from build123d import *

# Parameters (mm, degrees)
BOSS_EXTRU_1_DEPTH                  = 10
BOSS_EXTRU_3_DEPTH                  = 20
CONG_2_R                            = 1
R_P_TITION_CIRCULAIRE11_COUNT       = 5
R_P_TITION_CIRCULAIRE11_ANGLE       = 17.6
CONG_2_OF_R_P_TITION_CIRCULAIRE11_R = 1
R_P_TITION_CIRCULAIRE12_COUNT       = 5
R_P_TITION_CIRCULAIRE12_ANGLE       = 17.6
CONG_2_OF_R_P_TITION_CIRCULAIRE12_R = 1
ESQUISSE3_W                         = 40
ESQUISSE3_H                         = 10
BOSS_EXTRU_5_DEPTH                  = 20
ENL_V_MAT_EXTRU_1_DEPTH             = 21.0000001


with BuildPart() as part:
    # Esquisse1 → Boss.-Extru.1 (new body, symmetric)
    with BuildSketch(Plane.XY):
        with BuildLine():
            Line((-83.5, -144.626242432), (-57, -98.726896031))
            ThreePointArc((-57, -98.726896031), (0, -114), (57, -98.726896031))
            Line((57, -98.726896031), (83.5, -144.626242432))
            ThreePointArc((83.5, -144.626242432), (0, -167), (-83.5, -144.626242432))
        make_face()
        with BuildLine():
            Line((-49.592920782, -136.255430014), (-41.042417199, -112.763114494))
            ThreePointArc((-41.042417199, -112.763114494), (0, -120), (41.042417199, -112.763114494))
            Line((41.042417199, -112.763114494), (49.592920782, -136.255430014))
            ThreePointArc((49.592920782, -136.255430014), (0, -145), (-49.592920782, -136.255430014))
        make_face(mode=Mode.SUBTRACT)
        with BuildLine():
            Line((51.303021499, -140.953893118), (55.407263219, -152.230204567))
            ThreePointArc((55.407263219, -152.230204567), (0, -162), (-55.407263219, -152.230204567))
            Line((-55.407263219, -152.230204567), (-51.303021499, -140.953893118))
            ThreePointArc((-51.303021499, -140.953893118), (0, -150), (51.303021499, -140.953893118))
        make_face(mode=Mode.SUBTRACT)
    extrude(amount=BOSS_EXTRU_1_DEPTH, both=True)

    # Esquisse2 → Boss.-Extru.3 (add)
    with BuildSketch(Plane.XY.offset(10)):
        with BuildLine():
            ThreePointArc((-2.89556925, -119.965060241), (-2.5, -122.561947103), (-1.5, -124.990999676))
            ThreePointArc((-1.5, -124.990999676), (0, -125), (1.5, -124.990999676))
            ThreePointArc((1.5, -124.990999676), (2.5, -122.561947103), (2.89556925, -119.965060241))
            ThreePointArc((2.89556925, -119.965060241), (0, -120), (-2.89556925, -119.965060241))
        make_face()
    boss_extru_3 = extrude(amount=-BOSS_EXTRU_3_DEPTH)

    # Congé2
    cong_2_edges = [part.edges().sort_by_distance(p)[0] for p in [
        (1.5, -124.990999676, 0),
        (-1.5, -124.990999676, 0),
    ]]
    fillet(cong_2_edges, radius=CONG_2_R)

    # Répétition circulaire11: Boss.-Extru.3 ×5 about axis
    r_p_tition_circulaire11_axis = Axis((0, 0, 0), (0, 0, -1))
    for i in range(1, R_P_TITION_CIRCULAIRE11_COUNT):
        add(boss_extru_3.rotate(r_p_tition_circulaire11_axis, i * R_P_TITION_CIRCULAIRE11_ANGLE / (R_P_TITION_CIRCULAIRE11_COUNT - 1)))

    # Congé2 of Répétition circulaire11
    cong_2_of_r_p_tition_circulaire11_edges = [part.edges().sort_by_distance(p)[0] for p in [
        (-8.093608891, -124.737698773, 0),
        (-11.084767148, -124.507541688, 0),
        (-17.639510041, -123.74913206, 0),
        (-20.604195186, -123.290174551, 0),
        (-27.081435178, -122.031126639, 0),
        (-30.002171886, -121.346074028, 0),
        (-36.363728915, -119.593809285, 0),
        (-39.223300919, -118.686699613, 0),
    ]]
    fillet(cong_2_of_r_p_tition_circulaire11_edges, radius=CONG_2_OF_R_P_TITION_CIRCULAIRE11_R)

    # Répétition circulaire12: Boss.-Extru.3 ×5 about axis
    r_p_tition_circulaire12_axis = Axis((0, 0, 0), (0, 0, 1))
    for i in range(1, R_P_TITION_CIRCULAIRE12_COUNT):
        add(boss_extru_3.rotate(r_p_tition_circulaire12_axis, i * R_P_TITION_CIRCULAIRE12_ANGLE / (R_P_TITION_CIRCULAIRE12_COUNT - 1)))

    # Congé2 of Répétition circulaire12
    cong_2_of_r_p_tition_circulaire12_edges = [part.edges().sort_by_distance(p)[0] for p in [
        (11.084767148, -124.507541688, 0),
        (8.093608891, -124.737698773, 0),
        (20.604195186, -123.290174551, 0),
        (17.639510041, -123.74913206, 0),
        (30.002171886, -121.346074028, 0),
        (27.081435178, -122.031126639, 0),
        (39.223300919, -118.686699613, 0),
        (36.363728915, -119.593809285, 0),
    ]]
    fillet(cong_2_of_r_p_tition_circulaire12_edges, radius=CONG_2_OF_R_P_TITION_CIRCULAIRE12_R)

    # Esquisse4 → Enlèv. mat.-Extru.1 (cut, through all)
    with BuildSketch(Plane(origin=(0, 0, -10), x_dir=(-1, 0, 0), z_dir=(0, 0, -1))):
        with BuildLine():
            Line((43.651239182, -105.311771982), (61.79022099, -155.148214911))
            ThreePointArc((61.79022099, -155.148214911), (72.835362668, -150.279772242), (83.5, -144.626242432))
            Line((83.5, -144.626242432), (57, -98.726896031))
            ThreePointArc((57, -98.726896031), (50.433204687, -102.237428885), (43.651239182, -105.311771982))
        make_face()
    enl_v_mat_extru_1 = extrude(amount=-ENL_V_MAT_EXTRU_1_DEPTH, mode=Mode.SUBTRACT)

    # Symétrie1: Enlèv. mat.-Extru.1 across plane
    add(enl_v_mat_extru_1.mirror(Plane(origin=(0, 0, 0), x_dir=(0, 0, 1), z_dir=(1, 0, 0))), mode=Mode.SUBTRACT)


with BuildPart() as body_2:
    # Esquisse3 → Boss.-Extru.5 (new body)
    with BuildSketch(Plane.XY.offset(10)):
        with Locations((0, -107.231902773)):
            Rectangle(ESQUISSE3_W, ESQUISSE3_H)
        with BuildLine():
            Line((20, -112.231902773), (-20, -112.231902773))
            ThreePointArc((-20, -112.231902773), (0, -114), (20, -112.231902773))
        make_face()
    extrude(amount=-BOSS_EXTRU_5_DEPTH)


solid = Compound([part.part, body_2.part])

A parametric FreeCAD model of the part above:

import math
import FreeCAD as App
import Part
import Sketcher
from FreeCAD import Vector
Q = App.Units.Quantity


def edges_at(feature, points):
    """Names of the edges that pass closest to the given points."""
    edges = feature.Shape.Edges
    near = lambda p: min(range(len(edges)), key=lambda i: edges[i].distToShape(Part.Vertex(*p))[0])
    return sorted({f"Edge{near(p) + 1}" for p in points})

doc = App.newDocument("Part")
body = doc.addObject("PartDesign::Body", "Body")

sketch1 = body.newObject("Sketcher::SketchObject", "Sketch")
sketch1.AttachmentSupport = (doc.getObject("XY_Plane"), [""])
sketch1.MapMode = "FlatFace"
sketch1.addGeometry([
    Part.LineSegment(Vector(-57, -98.726896, 0), Vector(-83.5, -144.626242, 0)),
    Part.ArcOfCircle(Part.Circle(Vector(0, 0, 0), Vector(0, 0, 1), 167), math.radians(-120), math.radians(-60)),
    Part.LineSegment(Vector(83.5, -144.626242, 0), Vector(57, -98.726896, 0)),
    Part.ArcOfCircle(Part.Circle(Vector(0, 0, 0), Vector(0, 0, 1), 114), math.radians(-120), math.radians(-60)),
    Part.LineSegment(Vector(51.303021, -140.953893, 0), Vector(55.407263, -152.230205, 0)),
    Part.ArcOfCircle(Part.Circle(Vector(0, 0, 0), Vector(0, 0, 1), 162), math.radians(-110), math.radians(-70)),
    Part.LineSegment(Vector(-55.407263, -152.230205, 0), Vector(-51.303021, -140.953893, 0)),
    Part.ArcOfCircle(Part.Circle(Vector(0, 0, 0), Vector(0, 0, 1), 150), math.radians(-110), math.radians(-70)),
    Part.LineSegment(Vector(-49.592921, -136.25543, 0), Vector(-41.042417, -112.763114, 0)),
    Part.ArcOfCircle(Part.Circle(Vector(0, 0, 0), Vector(0, 0, 1), 120), math.radians(-110), math.radians(-70)),
    Part.LineSegment(Vector(41.042417, -112.763114, 0), Vector(49.592921, -136.25543, 0)),
    Part.ArcOfCircle(Part.Circle(Vector(0, 0, 0), Vector(0, 0, 1), 145), math.radians(-110), math.radians(-70)),
], False)
sketch1.addConstraint([
    Sketcher.Constraint("Coincident", 0, 2, 1, 1),
    Sketcher.Constraint("Coincident", 1, 2, 2, 1),
    Sketcher.Constraint("Coincident", 2, 2, 3, 2),
    Sketcher.Constraint("Coincident", 3, 1, 0, 1),
    Sketcher.Constraint("Coincident", 4, 2, 5, 2),
    Sketcher.Constraint("Coincident", 5, 1, 6, 1),
    Sketcher.Constraint("Coincident", 6, 2, 7, 1),
    Sketcher.Constraint("Coincident", 7, 2, 4, 1),
    Sketcher.Constraint("Coincident", 8, 2, 9, 1),
    Sketcher.Constraint("Coincident", 9, 2, 10, 1),
    Sketcher.Constraint("Coincident", 10, 2, 11, 2),
    Sketcher.Constraint("Coincident", 11, 1, 8, 1),
    Sketcher.Constraint("Coincident", 1, 3, -1, 1),
    Sketcher.Constraint("Coincident", 3, 3, -1, 1),
    Sketcher.Constraint("Coincident", 5, 3, -1, 1),
    Sketcher.Constraint("Coincident", 7, 3, -1, 1),
    Sketcher.Constraint("Coincident", 9, 3, -1, 1),
    Sketcher.Constraint("Coincident", 11, 3, -1, 1),
    Sketcher.Constraint("Parallel", 6, 8),
    Sketcher.Constraint("Parallel", 4, 10),
    Sketcher.Constraint("Horizontal", 0, 2, 1, 2),
    Sketcher.Constraint("Horizontal", 2, 2, 3, 1),
    Sketcher.Constraint("Horizontal", 4, 2, 5, 1),
    Sketcher.Constraint("Horizontal", 6, 2, 7, 2),
    Sketcher.Constraint("Horizontal", 8, 2, 9, 2),
    Sketcher.Constraint("Radius", 1, Q("167 mm")),
    Sketcher.Constraint("Radius", 3, Q("114 mm")),
    Sketcher.Constraint("Radius", 5, Q("162 mm")),
    Sketcher.Constraint("Radius", 7, Q("150 mm")),
    Sketcher.Constraint("Radius", 9, Q("120 mm")),
    Sketcher.Constraint("Radius", 11, Q("145 mm")),
    Sketcher.Constraint("Angle", 0, Q("-120 deg")),
    Sketcher.Constraint("Angle", 4, Q("-70 deg")),
    Sketcher.Constraint("DistanceX", -1, 1, 2, 2, Q("57 mm")),
    Sketcher.Constraint("DistanceX", 10, 2, 7, 2, Q("1.710101 mm")),
    Sketcher.Constraint("DistanceX", 6, 2, -1, 1, Q("51.303021 mm")),
])
pad1 = body.newObject("PartDesign::Pad", "Pad")
pad1.Profile = sketch1
pad1.Length = 20
pad1.Midplane = True

sketch2 = body.newObject("Sketcher::SketchObject", "Sketch001")
sketch2.AttachmentSupport = (doc.getObject("XY_Plane"), [""])
sketch2.MapMode = "FlatFace"
sketch2.AttachmentOffset = App.Placement(Vector(0, 0, 10), App.Rotation())
sketch2.addGeometry([
    Part.ArcOfCircle(Part.Circle(Vector(8.098982, -119.618893, 0), Vector(0, 0, 1), 11), math.radians(-178.196616), math.radians(-150.766276)),
    Part.ArcOfCircle(Part.Circle(Vector(0, 0, 0), Vector(0, 0, 1), 125), math.radians(-90.687566), math.radians(-89.312434)),
    Part.ArcOfCircle(Part.Circle(Vector(-8.098982, -119.618893, 0), Vector(0, 0, 1), 11), math.radians(-29.233724), math.radians(-1.803384)),
    Part.ArcOfCircle(Part.Circle(Vector(0, -0.000001, 0), Vector(0, 0, 1), 119.999999), math.radians(-91.382667), math.radians(-88.617333)),
], False)
sketch2.addConstraint([
    Sketcher.Constraint("Coincident", 0, 2, 1, 1),
    Sketcher.Constraint("Coincident", 1, 2, 2, 1),
    Sketcher.Constraint("Coincident", 2, 2, 3, 2),
    Sketcher.Constraint("Coincident", 3, 1, 0, 1),
    Sketcher.Constraint("Coincident", 1, 3, -1, 1),
    Sketcher.Constraint("Coincident", 3, 3, -1, 1),
    Sketcher.Constraint("Equal", 0, 2),
    Sketcher.Constraint("Symmetric", 0, 3, 2, 3, -2),
    Sketcher.Constraint("Radius", 0, Q("11 mm")),
    Sketcher.Constraint("Radius", 1, Q("125 mm")),
    Sketcher.Constraint("Radius", 3, Q("119.999999 mm")),
    Sketcher.Constraint("DistanceX", 0, 2, 1, 2, Q("3 mm")),
    Sketcher.Constraint("DistanceX", -1, 1, 2, 2, Q("2.895569 mm")),
])
pad2 = body.newObject("PartDesign::Pad", "Pad001")
pad2.Profile = sketch2
pad2.Length = 20
pad2.Reversed = True
doc.recompute()

fillet = body.newObject("PartDesign::Fillet", "Fillet")
fillet.Base = (pad2, edges_at(pad2, [(1.5, -124.991, 0), (-1.5, -124.991, 0)]))
fillet.Radius = 1
doc.recompute()

polarpattern = body.newObject("PartDesign::PolarPattern", "PolarPattern")
polarpattern.Originals = [pad2]
polarpattern.Axis = (doc.getObject("Z_Axis"), [""])
polarpattern.Angle = 17.6
polarpattern.Occurrences = 5
polarpattern.Reversed = True
body.Tip = polarpattern
doc.recompute()

fillet2 = body.newObject("PartDesign::Fillet", "Fillet001")
fillet2.Base = (polarpattern, edges_at(polarpattern, [
    (-8.094, -124.738, 0),
    (-11.085, -124.508, 0),
    (-17.64, -123.749, 0),
    (-20.604, -123.29, 0),
    (-27.081, -122.031, 0),
    (-30.002, -121.346, 0),
    (-36.364, -119.594, 0),
    (-39.223, -118.687, 0),
]))
fillet2.Radius = 1
doc.recompute()

polarpattern2 = body.newObject("PartDesign::PolarPattern", "PolarPattern001")
polarpattern2.Originals = [pad2]
polarpattern2.Axis = (doc.getObject("Z_Axis"), [""])
polarpattern2.Angle = 17.6
polarpattern2.Occurrences = 5
body.Tip = polarpattern2
doc.recompute()

fillet3 = body.newObject("PartDesign::Fillet", "Fillet002")
fillet3.Base = (polarpattern2, edges_at(polarpattern2, [
    (11.085, -124.508, 0),
    (8.094, -124.738, 0),
    (20.604, -123.29, 0),
    (17.64, -123.749, 0),
    (30.002, -121.346, 0),
    (27.081, -122.031, 0),
    (39.223, -118.687, 0),
    (36.364, -119.594, 0),
]))
fillet3.Radius = 1

sketch3 = body.newObject("Sketcher::SketchObject", "Sketch002")
sketch3.AttachmentSupport = (doc.getObject("XY_Plane"), [""])
sketch3.MapMode = "FlatFace"
sketch3.AttachmentOffset = App.Placement(Vector(0, 0, -10), App.Rotation())
sketch3.addGeometry([
    Part.LineSegment(Vector(-43.651239, -105.311772, 0), Vector(-61.790221, -155.148215, 0)),
    Part.ArcOfCircle(Part.Circle(Vector(0, 0, 0), Vector(0, 0, 1), 167), math.radians(-120), math.radians(-111.715699)),
    Part.LineSegment(Vector(-83.5, -144.626242, 0), Vector(-57, -98.726896, 0)),
    Part.ArcOfCircle(Part.Circle(Vector(0, 0, 0), Vector(0, 0, 1), 114), math.radians(-120), math.radians(-112.513779)),
], False)
sketch3.addConstraint([
    Sketcher.Constraint("Coincident", 0, 2, 1, 2),
    Sketcher.Constraint("Coincident", 1, 1, 2, 1),
    Sketcher.Constraint("Coincident", 2, 2, 3, 1),
    Sketcher.Constraint("Coincident", 3, 2, 0, 1),
    Sketcher.Constraint("Coincident", 1, 3, -1, 1),
    Sketcher.Constraint("Coincident", 3, 3, -1, 1),
    Sketcher.Constraint("Radius", 1, Q("167 mm")),
    Sketcher.Constraint("Radius", 3, Q("114 mm")),
    Sketcher.Constraint("Angle", 0, Q("-110 deg")),
    Sketcher.Constraint("Angle", 2, Q("60 deg")),
    Sketcher.Constraint("DistanceX", 2, 2, -1, 1, Q("57 mm")),
    Sketcher.Constraint("DistanceX", 0, 2, -1, 1, Q("61.790221 mm")),
])
pocket1 = body.newObject("PartDesign::Pocket", "Pocket")
pocket1.Profile = sketch3
pocket1.Type = "ThroughAll"
pocket1.Reversed = True
doc.recompute()

mirrored = body.newObject("PartDesign::Mirrored", "Mirrored")
mirrored.Originals = [pocket1]
mirrored.MirrorPlane = (doc.getObject("YZ_Plane"), [""])
body.Tip = mirrored
body2 = doc.addObject("PartDesign::Body", "Body001")

sketch4 = body2.newObject("Sketcher::SketchObject", "Sketch003")
sketch4.AttachmentSupport = (doc.getObject("XY_Plane001"), [""])
sketch4.MapMode = "FlatFace"
sketch4.AttachmentOffset = App.Placement(Vector(0, 0, 10), App.Rotation())
sketch4.addGeometry([
    Part.LineSegment(Vector(-20, -102.231903, 0), Vector(-20, -112.231903, 0)),
    Part.ArcOfCircle(Part.Circle(Vector(0, 0, 0), Vector(0, 0, 1), 114), math.radians(-100.104183), math.radians(-79.895817)),
    Part.LineSegment(Vector(20, -112.231903, 0), Vector(20, -102.231903, 0)),
    Part.LineSegment(Vector(20, -102.231903, 0), Vector(-20, -102.231903, 0)),
], False)
sketch4.addConstraint([
    Sketcher.Constraint("Coincident", 0, 2, 1, 1),
    Sketcher.Constraint("Coincident", 1, 2, 2, 1),
    Sketcher.Constraint("Coincident", 2, 2, 3, 1),
    Sketcher.Constraint("Coincident", 3, 2, 0, 1),
    Sketcher.Constraint("Vertical", 0),
    Sketcher.Constraint("Vertical", 2),
    Sketcher.Constraint("Horizontal", 3),
    Sketcher.Constraint("Coincident", 1, 3, -1, 1),
    Sketcher.Constraint("Horizontal", 0, 2, 1, 2),
    Sketcher.Constraint("Radius", 1, Q("114 mm")),
    Sketcher.Constraint("DistanceX", 3, 2, 3, 1, Q("40 mm")),
    Sketcher.Constraint("DistanceY", 0, 2, 0, 1, Q("10 mm")),
])
pad3 = body2.newObject("PartDesign::Pad", "Pad002")
pad3.Profile = sketch4
pad3.Length = 20
pad3.Reversed = True

doc.recompute()
